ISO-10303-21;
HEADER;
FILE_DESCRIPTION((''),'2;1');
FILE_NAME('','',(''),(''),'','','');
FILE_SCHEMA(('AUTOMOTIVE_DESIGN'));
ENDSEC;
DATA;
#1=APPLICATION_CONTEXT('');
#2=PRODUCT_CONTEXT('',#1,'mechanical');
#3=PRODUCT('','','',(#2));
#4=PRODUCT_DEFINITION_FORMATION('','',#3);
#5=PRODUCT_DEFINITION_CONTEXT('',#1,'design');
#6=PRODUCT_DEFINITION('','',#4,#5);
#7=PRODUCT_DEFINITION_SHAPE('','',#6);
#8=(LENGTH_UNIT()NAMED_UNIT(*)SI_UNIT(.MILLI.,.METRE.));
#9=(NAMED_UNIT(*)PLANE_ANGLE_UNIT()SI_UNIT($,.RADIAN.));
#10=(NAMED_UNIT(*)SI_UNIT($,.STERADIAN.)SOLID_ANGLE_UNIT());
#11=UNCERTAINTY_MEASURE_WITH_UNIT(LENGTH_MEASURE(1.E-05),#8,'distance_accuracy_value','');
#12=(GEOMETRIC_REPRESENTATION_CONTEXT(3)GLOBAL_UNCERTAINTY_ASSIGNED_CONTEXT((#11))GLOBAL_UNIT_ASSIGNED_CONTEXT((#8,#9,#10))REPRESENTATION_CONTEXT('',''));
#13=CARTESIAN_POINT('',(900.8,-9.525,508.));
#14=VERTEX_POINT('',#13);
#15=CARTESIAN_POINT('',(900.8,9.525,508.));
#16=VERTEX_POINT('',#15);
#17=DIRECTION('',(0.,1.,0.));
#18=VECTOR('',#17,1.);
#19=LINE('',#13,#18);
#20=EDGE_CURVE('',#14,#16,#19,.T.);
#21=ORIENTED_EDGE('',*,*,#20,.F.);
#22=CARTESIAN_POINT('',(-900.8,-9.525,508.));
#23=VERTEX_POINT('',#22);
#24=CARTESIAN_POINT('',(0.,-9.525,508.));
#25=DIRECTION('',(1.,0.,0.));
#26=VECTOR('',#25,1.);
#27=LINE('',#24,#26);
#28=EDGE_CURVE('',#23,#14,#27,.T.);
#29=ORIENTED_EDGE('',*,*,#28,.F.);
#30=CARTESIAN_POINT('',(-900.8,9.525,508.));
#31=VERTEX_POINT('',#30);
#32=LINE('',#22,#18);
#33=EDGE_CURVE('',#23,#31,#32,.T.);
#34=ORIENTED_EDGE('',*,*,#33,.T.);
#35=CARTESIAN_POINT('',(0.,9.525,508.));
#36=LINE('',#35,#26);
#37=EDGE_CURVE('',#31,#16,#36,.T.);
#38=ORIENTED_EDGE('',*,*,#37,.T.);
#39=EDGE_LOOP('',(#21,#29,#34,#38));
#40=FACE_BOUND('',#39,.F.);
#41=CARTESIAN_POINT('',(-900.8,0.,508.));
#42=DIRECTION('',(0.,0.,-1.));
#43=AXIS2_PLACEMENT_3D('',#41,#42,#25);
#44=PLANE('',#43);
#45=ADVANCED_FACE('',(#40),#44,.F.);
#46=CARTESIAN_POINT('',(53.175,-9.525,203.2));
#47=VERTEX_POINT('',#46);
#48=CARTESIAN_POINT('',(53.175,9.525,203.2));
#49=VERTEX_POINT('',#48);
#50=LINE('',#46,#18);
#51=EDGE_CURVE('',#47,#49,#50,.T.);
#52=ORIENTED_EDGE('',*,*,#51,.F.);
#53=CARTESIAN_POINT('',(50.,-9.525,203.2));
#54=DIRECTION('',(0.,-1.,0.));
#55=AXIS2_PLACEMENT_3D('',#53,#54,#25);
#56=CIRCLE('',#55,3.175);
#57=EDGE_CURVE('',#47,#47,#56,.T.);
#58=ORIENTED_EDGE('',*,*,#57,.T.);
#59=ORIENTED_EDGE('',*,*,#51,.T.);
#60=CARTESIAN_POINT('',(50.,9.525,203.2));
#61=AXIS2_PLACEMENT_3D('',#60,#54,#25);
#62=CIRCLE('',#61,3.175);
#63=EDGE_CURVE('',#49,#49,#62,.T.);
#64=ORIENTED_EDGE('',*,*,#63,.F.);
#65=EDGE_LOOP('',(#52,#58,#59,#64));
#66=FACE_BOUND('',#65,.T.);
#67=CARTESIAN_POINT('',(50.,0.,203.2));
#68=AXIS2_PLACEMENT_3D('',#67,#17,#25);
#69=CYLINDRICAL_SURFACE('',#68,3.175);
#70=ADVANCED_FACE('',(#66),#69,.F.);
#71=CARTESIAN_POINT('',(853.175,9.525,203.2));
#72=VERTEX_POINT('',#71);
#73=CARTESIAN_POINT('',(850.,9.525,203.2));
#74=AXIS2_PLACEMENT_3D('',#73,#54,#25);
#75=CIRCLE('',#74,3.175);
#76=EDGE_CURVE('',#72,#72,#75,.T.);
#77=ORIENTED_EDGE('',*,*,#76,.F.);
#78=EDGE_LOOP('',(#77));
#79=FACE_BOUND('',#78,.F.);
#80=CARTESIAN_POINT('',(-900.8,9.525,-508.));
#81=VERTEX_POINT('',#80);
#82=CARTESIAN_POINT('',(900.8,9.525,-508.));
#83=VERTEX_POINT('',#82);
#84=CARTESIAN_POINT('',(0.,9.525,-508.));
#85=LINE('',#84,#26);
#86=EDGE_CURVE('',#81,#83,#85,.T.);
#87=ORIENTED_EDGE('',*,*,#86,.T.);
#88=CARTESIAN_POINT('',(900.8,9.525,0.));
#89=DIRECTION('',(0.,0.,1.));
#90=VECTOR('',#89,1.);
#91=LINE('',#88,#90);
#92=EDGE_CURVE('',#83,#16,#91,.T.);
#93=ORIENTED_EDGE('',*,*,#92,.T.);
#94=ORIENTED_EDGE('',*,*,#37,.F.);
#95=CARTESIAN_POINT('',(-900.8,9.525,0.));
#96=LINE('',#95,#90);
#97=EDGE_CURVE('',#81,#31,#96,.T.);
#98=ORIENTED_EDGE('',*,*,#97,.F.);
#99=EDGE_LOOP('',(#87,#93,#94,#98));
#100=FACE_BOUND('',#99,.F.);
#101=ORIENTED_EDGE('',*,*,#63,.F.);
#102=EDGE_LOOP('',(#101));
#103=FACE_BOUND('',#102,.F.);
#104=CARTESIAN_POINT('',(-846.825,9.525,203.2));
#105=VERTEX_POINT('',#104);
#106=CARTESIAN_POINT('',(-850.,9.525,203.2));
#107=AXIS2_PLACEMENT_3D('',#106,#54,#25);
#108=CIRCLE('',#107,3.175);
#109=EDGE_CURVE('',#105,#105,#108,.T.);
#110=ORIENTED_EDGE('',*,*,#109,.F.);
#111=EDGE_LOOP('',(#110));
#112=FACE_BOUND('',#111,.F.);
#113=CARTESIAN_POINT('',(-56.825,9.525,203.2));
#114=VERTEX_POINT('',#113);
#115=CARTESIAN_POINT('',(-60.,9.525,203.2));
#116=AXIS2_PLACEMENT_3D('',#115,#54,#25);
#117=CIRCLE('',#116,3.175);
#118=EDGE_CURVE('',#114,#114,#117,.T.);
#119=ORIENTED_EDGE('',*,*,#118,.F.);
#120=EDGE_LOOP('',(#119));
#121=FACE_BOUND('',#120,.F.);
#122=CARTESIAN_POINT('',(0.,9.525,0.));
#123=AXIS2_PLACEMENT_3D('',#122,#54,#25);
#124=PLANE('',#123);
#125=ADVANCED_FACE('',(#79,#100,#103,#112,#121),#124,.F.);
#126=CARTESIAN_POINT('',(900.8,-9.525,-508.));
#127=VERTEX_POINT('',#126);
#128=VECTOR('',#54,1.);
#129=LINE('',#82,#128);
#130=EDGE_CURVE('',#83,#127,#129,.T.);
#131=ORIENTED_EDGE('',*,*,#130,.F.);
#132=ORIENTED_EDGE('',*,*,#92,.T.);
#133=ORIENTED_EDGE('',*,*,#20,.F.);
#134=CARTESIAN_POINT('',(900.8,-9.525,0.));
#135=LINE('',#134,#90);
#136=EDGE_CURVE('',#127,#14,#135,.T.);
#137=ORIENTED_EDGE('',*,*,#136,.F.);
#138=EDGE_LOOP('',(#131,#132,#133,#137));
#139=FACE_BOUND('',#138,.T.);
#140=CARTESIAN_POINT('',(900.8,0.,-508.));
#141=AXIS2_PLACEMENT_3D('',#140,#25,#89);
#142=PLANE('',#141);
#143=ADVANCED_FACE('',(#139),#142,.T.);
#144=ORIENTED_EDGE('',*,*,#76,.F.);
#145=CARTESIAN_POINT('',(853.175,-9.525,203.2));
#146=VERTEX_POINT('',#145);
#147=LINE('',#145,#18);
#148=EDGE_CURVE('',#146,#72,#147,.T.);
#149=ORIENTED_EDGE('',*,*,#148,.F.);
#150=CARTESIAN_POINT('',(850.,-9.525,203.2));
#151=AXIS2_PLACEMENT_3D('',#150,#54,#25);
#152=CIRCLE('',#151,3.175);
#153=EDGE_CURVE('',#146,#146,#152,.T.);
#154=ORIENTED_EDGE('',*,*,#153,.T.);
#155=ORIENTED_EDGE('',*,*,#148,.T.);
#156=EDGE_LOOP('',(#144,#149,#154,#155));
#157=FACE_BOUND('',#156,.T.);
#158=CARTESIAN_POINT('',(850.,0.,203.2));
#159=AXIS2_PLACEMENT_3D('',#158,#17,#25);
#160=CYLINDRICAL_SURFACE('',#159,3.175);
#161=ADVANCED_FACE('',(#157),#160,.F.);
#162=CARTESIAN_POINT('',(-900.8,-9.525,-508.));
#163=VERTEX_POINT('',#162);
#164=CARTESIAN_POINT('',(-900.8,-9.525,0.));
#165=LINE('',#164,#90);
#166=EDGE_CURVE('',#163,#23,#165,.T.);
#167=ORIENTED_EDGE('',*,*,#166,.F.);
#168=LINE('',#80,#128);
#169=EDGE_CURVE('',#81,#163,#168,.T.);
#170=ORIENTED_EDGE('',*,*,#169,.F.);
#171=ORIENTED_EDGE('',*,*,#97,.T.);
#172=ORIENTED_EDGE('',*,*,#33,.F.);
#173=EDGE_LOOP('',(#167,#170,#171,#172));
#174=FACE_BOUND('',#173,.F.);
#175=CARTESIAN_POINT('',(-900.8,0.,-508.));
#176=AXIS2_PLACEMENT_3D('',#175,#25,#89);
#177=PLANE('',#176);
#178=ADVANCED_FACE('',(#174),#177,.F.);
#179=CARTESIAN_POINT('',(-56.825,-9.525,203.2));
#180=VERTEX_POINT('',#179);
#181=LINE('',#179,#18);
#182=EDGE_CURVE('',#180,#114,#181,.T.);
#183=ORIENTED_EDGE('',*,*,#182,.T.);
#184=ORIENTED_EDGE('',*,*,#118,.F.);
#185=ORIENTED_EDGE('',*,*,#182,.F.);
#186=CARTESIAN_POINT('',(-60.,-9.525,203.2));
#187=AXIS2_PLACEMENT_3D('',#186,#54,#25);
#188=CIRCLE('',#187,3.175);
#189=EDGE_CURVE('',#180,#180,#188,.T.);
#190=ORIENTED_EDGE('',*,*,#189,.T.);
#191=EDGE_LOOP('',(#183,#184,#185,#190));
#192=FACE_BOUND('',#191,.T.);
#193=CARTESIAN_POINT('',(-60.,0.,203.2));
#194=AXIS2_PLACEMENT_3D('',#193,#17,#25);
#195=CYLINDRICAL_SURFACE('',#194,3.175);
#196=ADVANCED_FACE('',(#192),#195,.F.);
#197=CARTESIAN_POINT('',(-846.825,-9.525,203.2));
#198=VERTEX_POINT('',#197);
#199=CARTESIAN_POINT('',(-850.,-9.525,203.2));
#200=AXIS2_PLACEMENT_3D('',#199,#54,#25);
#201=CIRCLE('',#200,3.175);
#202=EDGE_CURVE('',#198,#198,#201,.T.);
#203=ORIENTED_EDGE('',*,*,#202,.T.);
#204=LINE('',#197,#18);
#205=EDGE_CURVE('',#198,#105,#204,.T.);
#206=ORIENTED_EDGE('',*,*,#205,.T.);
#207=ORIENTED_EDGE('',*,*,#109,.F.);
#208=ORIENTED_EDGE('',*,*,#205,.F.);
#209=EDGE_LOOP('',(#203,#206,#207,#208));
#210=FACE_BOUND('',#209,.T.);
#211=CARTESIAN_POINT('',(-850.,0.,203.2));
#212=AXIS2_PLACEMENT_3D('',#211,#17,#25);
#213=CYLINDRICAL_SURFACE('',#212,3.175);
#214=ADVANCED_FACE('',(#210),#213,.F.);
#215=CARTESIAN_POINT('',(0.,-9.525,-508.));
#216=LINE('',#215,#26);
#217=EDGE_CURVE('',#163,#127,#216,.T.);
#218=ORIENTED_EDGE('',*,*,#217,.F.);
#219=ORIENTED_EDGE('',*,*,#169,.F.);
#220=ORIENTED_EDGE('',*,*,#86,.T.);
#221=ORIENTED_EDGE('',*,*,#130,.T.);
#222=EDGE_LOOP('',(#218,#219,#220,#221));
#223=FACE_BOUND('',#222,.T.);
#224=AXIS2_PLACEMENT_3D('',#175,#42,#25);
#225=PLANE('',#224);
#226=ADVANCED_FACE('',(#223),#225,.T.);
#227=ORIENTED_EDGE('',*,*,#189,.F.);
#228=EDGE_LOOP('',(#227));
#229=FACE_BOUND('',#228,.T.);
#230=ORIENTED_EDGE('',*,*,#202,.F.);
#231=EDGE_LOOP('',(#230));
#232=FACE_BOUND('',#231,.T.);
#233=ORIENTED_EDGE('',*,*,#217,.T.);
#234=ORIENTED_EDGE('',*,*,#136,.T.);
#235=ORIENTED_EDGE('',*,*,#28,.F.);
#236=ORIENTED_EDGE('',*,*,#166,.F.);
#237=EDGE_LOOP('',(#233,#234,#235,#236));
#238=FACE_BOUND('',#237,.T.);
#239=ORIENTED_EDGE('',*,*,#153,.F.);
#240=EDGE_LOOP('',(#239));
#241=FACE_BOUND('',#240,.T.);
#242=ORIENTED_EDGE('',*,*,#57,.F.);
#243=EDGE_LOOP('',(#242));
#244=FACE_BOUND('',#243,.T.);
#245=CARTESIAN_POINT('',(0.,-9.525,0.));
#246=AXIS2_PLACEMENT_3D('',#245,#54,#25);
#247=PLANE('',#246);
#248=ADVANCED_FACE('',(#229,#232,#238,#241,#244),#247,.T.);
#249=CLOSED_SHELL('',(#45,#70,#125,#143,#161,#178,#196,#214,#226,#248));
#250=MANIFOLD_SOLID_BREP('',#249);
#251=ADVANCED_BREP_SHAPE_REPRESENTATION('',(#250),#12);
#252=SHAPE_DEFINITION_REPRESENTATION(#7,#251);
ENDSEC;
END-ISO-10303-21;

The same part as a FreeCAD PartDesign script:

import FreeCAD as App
import Part
import Sketcher
from FreeCAD import Vector
Q = App.Units.Quantity


def add_polygon(sketch, points):
    """Adds a closed chain of lines whose ends are joined by coincident constraints."""
    first, n = sketch.GeometryCount, len(points)
    for a, b in zip(points, points[1:] + points[:1]):
        sketch.addGeometry(Part.LineSegment(App.Vector(*a, 0), App.Vector(*b, 0)), False)
    for i in range(n):
        sketch.addConstraint(Sketcher.Constraint("Coincident", first + i, 2, first + (i + 1) % n, 1))

doc = App.newDocument("Part")
body = doc.addObject("PartDesign::Body", "Body")

# Sketch on XZ plane
sketch1 = body.newObject("Sketcher::SketchObject", "Sketch")
sketch1.AttachmentSupport = (doc.getObject("XZ_Plane"), [""])
sketch1.MapMode = "FlatFace"
add_polygon(sketch1, [(-900.8, 508), (-900.8, -508), (900.8, -508), (900.8, 508)])  # lines 0-3
sketch1.addGeometry(Part.Circle(Vector(-850, 203.2, 0), Vector(0, 0, 1), 3.2), False)  # 4
sketch1.addGeometry(Part.Circle(Vector(-60, 203.2, 0), Vector(0, 0, 1), 3.2), False)  # 5
sketch1.addGeometry(Part.Circle(Vector(50, 203.2, 0), Vector(0, 0, 1), 3.2), False)  # 6
sketch1.addGeometry(Part.Circle(Vector(850, 203.2, 0), Vector(0, 0, 1), 3.2), False)  # 7
sketch1.addConstraint(Sketcher.Constraint("Vertical", 0))
sketch1.addConstraint(Sketcher.Constraint("Horizontal", 1))
sketch1.addConstraint(Sketcher.Constraint("Vertical", 2))
sketch1.addConstraint(Sketcher.Constraint("Horizontal", 3))
sketch1.addConstraint(Sketcher.Constraint("Equal", 4, 5))
sketch1.addConstraint(Sketcher.Constraint("Equal", 5, 6))
sketch1.addConstraint(Sketcher.Constraint("Equal", 6, 7))
sketch1.addConstraint(Sketcher.Constraint("Symmetric", 0, 2, 2, 2, -1, 1))
sketch1.addConstraint(Sketcher.Constraint("Symmetric", 4, 3, 7, 3, -2))
sketch1.addConstraint(Sketcher.Constraint("Horizontal", 4, 3, 5, 3))
sketch1.addConstraint(Sketcher.Constraint("Horizontal", 5, 3, 6, 3))
sketch1.addConstraint(Sketcher.Constraint("Diameter", 4, Q("0.25 in")))
sketch1.addConstraint(Sketcher.Constraint("DistanceY", 0, 2, 0, 1, Q("40 in")))
sketch1.addConstraint(Sketcher.Constraint("DistanceY", -1, 1, 4, 3, Q("8 in")))
sketch1.addConstraint(Sketcher.Constraint("DistanceX", 0, 2, 4, 3, Q("2 in")))
sketch1.addConstraint(Sketcher.Constraint("DistanceX", 1, 1, 1, 2, 1801.6))
sketch1.addConstraint(Sketcher.Constraint("DistanceX", 5, 3, -1, 1, 60.0))
sketch1.addConstraint(Sketcher.Constraint("DistanceX", -1, 1, 6, 3, 50.0))
pad1 = body.newObject("PartDesign::Pad", "Pad")
pad1.Profile = sketch1
pad1.Length = Q("0.75 in")
pad1.Midplane = True

doc.recompute()
